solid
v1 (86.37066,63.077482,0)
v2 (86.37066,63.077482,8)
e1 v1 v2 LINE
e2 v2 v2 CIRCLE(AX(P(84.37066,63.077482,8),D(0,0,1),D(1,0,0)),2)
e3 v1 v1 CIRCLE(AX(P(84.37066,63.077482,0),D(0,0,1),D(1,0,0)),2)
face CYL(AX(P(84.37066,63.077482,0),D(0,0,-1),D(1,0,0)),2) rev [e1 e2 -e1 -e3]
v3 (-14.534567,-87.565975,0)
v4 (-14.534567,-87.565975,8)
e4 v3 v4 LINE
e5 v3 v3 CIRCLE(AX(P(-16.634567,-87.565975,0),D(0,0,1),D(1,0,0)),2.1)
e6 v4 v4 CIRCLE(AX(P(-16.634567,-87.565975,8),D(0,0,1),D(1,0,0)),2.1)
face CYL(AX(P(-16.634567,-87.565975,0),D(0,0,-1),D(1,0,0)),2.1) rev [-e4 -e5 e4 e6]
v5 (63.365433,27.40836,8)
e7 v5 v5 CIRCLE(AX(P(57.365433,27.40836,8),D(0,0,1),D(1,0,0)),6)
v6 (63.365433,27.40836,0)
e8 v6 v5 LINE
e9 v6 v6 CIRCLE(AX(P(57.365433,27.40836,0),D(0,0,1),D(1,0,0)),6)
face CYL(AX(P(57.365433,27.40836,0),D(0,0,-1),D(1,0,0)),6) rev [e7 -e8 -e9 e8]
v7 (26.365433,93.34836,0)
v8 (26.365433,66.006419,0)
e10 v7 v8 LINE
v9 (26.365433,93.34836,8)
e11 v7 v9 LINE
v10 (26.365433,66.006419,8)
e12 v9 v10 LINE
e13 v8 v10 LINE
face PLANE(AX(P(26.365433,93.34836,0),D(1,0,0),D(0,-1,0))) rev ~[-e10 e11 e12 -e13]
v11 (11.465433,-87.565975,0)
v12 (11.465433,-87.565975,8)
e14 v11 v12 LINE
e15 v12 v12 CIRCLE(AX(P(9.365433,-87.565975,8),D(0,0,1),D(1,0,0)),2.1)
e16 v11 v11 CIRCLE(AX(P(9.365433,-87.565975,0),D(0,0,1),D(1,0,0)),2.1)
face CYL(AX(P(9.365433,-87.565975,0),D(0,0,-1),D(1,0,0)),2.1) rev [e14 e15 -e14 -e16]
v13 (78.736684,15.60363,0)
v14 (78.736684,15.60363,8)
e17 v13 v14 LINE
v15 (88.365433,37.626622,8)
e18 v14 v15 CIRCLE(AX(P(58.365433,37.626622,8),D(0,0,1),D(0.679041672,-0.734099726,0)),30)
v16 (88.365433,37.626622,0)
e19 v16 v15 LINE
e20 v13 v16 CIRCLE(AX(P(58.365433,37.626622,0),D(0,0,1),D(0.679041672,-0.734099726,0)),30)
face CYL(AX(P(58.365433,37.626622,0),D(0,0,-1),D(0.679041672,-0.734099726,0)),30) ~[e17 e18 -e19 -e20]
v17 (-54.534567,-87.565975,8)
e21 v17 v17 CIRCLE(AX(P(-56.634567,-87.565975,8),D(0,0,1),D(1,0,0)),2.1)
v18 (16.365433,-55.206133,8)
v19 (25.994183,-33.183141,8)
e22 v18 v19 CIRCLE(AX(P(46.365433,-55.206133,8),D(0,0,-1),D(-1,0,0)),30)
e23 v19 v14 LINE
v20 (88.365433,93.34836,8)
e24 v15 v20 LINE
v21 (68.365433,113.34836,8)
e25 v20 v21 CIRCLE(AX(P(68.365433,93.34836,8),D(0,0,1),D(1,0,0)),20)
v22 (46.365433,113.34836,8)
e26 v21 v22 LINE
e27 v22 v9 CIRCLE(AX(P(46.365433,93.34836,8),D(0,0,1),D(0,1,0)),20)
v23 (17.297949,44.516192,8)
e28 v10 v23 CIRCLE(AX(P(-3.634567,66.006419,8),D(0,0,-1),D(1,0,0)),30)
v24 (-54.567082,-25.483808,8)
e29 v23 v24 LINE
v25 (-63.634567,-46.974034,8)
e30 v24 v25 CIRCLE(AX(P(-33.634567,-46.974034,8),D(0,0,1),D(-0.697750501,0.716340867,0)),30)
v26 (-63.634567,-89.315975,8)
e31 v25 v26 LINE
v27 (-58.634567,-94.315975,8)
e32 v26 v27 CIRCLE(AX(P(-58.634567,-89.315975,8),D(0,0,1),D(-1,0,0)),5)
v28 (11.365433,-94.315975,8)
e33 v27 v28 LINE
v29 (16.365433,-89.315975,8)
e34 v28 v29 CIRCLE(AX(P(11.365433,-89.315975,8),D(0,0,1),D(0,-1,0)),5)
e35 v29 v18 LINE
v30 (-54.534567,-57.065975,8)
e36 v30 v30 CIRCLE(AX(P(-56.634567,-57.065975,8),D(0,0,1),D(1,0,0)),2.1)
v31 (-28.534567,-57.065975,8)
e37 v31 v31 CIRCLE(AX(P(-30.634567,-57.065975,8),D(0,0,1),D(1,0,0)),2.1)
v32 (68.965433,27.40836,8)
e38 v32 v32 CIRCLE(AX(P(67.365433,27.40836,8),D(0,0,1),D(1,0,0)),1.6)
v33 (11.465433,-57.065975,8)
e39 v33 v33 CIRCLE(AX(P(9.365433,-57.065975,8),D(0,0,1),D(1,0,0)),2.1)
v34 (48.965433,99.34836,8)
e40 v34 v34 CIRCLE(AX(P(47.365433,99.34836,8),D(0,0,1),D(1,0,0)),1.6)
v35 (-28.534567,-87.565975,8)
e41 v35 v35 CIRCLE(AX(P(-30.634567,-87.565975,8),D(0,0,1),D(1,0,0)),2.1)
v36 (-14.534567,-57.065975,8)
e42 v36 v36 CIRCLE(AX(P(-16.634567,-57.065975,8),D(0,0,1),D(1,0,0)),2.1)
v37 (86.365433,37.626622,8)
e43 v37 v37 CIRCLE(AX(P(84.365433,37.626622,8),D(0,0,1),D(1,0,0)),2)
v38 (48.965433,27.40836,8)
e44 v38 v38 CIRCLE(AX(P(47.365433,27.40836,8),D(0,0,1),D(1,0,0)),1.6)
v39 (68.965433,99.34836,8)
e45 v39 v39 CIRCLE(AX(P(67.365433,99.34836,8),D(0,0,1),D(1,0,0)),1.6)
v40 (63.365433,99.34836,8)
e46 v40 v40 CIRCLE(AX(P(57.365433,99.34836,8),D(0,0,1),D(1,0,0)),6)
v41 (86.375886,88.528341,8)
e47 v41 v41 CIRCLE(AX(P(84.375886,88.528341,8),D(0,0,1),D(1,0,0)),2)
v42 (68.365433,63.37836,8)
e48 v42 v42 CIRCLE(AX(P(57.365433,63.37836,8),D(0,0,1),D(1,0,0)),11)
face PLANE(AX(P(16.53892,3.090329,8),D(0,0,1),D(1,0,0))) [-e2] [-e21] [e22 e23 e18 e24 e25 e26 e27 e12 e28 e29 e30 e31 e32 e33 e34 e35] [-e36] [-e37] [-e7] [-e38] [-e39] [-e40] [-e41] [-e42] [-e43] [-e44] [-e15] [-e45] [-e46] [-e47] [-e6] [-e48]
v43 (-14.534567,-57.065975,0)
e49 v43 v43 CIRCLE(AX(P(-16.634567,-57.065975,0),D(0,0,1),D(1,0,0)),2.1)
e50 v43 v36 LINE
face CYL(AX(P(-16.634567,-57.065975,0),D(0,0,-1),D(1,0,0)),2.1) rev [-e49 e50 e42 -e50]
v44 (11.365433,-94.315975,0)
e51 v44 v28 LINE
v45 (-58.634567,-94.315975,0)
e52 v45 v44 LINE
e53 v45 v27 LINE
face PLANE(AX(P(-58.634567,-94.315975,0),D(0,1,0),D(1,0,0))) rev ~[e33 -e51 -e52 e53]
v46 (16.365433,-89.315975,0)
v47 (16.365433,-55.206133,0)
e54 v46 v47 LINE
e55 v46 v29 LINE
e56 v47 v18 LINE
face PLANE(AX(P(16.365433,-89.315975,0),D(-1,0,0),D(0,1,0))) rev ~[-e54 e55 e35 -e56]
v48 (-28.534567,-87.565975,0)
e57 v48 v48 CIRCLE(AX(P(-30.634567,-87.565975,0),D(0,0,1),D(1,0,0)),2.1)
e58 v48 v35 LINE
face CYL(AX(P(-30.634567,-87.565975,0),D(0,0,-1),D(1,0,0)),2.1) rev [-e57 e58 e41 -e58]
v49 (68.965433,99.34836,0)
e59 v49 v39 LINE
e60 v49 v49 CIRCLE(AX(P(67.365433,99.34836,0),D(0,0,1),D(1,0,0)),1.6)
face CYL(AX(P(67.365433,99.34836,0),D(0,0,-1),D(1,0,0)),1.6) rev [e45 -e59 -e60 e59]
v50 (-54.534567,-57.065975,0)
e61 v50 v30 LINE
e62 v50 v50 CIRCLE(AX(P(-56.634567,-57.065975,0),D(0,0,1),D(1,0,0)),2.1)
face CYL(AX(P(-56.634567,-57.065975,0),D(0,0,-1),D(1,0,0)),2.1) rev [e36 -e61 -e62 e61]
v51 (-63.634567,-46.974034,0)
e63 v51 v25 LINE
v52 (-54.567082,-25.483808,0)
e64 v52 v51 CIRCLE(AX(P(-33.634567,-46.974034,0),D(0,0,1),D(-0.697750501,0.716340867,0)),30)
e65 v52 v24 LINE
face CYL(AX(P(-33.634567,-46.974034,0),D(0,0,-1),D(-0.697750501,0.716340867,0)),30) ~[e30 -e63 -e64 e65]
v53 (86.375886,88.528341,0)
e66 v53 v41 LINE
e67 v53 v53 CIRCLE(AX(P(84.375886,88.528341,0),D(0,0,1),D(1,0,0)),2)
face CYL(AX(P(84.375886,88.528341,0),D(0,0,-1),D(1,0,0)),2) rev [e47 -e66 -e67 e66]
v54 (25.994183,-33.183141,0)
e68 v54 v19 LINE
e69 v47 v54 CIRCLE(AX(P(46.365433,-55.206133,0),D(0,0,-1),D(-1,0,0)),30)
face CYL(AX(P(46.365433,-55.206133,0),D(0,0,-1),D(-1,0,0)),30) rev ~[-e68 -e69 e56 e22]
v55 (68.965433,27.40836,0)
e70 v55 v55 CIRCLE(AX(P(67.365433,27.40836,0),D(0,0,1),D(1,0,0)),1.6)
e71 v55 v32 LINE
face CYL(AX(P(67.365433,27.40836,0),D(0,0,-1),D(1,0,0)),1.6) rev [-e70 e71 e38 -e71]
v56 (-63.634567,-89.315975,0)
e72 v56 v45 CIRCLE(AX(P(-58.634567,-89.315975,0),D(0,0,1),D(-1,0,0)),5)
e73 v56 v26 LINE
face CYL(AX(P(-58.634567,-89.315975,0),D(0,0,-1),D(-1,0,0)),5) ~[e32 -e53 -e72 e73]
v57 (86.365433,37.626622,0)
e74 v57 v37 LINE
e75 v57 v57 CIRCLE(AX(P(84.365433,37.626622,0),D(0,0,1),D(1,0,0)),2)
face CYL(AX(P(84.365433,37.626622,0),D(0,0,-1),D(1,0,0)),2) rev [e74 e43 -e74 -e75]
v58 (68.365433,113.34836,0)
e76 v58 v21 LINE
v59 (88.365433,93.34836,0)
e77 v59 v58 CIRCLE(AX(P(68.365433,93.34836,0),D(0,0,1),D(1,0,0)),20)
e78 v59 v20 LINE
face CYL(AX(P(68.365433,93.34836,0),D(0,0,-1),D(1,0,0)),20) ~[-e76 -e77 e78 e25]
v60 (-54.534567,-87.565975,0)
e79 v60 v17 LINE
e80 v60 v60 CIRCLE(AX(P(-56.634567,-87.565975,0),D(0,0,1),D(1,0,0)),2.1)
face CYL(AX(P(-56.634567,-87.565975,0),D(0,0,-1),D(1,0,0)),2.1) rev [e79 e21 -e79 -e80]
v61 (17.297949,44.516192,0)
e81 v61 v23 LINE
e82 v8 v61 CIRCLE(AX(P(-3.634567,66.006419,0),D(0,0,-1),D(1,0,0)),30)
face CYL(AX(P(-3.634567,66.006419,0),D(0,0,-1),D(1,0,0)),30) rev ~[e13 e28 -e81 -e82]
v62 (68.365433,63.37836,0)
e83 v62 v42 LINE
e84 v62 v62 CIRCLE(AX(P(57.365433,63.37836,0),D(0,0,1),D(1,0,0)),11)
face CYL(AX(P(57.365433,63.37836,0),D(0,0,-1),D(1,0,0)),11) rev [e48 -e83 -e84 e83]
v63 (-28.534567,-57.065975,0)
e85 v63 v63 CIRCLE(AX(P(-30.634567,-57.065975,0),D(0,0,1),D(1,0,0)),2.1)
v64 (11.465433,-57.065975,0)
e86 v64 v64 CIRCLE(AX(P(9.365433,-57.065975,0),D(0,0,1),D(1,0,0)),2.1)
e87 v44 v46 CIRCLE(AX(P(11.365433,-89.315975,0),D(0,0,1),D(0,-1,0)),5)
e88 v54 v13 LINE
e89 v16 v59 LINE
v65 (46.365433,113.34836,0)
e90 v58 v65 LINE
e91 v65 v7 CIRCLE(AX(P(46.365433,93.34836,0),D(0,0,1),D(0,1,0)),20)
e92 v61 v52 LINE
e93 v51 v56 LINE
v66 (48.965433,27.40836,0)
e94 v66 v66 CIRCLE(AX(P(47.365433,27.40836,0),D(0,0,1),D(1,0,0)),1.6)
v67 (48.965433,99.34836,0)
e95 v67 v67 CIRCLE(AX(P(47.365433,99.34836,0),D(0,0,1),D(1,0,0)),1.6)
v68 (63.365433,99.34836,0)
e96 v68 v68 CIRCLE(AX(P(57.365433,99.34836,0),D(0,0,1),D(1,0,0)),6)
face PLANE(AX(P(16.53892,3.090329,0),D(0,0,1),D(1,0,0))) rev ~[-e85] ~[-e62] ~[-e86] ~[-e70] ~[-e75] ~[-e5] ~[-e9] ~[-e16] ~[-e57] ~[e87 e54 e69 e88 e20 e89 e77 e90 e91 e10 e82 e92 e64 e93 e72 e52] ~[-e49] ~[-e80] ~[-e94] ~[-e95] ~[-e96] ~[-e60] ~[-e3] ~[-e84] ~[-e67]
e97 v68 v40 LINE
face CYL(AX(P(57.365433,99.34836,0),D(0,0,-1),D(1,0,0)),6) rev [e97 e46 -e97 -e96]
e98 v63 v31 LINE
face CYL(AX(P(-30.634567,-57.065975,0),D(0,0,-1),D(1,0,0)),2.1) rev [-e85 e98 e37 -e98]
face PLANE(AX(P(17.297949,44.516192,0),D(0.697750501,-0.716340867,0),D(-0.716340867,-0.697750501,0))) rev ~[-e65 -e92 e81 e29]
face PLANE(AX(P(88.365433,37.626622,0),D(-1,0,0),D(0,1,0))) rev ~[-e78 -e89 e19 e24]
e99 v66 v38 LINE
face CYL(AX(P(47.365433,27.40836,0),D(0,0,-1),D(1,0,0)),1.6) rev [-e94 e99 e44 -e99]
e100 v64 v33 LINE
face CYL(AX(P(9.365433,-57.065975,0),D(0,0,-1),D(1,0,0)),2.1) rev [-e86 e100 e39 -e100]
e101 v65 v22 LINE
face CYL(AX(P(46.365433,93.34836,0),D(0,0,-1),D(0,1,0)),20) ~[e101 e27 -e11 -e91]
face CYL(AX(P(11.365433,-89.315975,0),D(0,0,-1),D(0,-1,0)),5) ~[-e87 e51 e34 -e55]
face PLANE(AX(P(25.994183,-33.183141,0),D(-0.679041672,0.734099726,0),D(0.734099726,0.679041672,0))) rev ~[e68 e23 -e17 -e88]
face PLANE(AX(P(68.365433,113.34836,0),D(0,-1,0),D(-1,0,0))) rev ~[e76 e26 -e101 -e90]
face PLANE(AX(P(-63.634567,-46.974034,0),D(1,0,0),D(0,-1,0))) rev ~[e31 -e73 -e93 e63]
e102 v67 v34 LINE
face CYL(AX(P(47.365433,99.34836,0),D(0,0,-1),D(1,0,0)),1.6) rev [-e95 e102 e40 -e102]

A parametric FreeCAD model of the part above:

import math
import FreeCAD as App
import Part
import Sketcher

V = App.Vector
Q = App.Units.Quantity

doc = App.newDocument("Part")
body = doc.addObject("PartDesign::Body", "Body")

# Sketch on XY plane
sketch1 = body.newObject("Sketcher::SketchObject", "Sketch")
sketch1.AttachmentSupport = (doc.getObject("XY_Plane"), [""])
sketch1.MapMode = "FlatFace"
sketch1.addGeometry(Part.LineSegment(V(-58.634567, -94.315975, 0), V(11.365433, -94.315975, 0)), False)
sketch1.addGeometry(Part.ArcOfCircle(Part.Circle(V(11.365433, -89.315975, 0), V(0, 0, 1), 5), math.radians(-90), math.radians(0)), False)
sketch1.addGeometry(Part.LineSegment(V(16.365433, -89.315975, 0), V(16.365433, -55.206133, 0)), False)
sketch1.addGeometry(Part.ArcOfCircle(Part.Circle(V(46.365433, -55.206133, 0), V(0, 0, 1), 30), math.radians(132.768801), math.radians(180)), False)
sketch1.addGeometry(Part.LineSegment(V(25.994183, -33.183141, 0), V(78.736684, 15.60363, 0)), False)
sketch1.addGeometry(Part.ArcOfCircle(Part.Circle(V(58.365433, 37.626622, 0), V(0, 0, 1), 30), math.radians(-47.231199), math.radians(0)), False)
sketch1.addGeometry(Part.LineSegment(V(88.365433, 37.626622, 0), V(88.365433, 93.34836, 0)), False)
sketch1.addGeometry(Part.ArcOfCircle(Part.Circle(V(68.365433, 93.34836, 0), V(0, 0, 1), 20), math.radians(0), math.radians(90)), False)
sketch1.addGeometry(Part.LineSegment(V(68.365433, 113.34836, 0), V(46.365433, 113.34836, 0)), False)
sketch1.addGeometry(Part.ArcOfCircle(Part.Circle(V(46.365433, 93.34836, 0), V(0, 0, 1), 20), math.radians(90), math.radians(180)), False)
sketch1.addGeometry(Part.LineSegment(V(26.365433, 93.34836, 0), V(26.365433, 66.006419, 0)), False)
sketch1.addGeometry(Part.ArcOfCircle(Part.Circle(V(-3.634567, 66.006419, 0), V(0, 0, 1), 30), math.radians(-45.753196), math.radians(0)), False)
sketch1.addGeometry(Part.LineSegment(V(17.297949, 44.516192, 0), V(-54.567082, -25.483808, 0)), False)
sketch1.addGeometry(Part.ArcOfCircle(Part.Circle(V(-33.634567, -46.974034, 0), V(0, 0, 1), 30), math.radians(134.246804), math.radians(180)), False)
sketch1.addGeometry(Part.LineSegment(V(-63.634567, -46.974034, 0), V(-63.634567, -89.315975, 0)), False)
sketch1.addGeometry(Part.ArcOfCircle(Part.Circle(V(-58.634567, -89.315975, 0), V(0, 0, 1), 5), math.radians(180), math.radians(270)), False)
sketch1.addGeometry(Part.Circle(V(-56.634567, -87.565975, 0), V(0, 0, 1), 2.1), False)
sketch1.addGeometry(Part.Circle(V(-30.634567, -87.565975, 0), V(0, 0, 1), 2.1), False)
sketch1.addGeometry(Part.Circle(V(-56.634567, -57.065975, 0), V(0, 0, 1), 2.1), False)
sketch1.addGeometry(Part.Circle(V(-30.634567, -57.065975, 0), V(0, 0, 1), 2.1), False)
sketch1.addGeometry(Part.Circle(V(-16.634567, -87.565975, 0), V(0, 0, 1), 2.1), False)
sketch1.addGeometry(Part.Circle(V(9.365433, -87.565975, 0), V(0, 0, 1), 2.1), False)
sketch1.addGeometry(Part.Circle(V(-16.634567, -57.065975, 0), V(0, 0, 1), 2.1), False)
sketch1.addGeometry(Part.Circle(V(9.365433, -57.065975, 0), V(0, 0, 1), 2.1), False)
sketch1.addGeometry(Part.Circle(V(47.365433, 27.40836, 0), V(0, 0, 1), 1.6), False)
sketch1.addGeometry(Part.Circle(V(57.365433, 27.40836, 0), V(0, 0, 1), 6), False)
sketch1.addGeometry(Part.Circle(V(67.365433, 27.40836, 0), V(0, 0, 1), 1.6), False)
sketch1.addGeometry(Part.Circle(V(84.365433, 37.626622, 0), V(0, 0, 1), 2), False)
sketch1.addGeometry(Part.Circle(V(47.365433, 99.34836, 0), V(0, 0, 1), 1.6), False)
sketch1.addGeometry(Part.Circle(V(57.365433, 63.37836, 0), V(0, 0, 1), 11), False)
sketch1.addGeometry(Part.Circle(V(84.37066, 63.077482, 0), V(0, 0, 1), 2), False)
sketch1.addGeometry(Part.Circle(V(57.365433, 99.34836, 0), V(0, 0, 1), 6), False)
sketch1.addGeometry(Part.Circle(V(67.365433, 99.34836, 0), V(0, 0, 1), 1.6), False)
sketch1.addGeometry(Part.Circle(V(84.375886, 88.528341, 0), V(0, 0, 1), 2), False)
sketch1.addConstraint(Sketcher.Constraint("Tangent", 0, 2, 1, 1))
sketch1.addConstraint(Sketcher.Constraint("Tangent", 1, 2, 2, 1))
sketch1.addConstraint(Sketcher.Constraint("Tangent", 2, 2, 3, 2))
sketch1.addConstraint(Sketcher.Constraint("Tangent", 3, 1, 4, 1))
sketch1.addConstraint(Sketcher.Constraint("Tangent", 4, 2, 5, 1))
sketch1.addConstraint(Sketcher.Constraint("Tangent", 5, 2, 6, 1))
sketch1.addConstraint(Sketcher.Constraint("Tangent", 6, 2, 7, 1))
sketch1.addConstraint(Sketcher.Constraint("Tangent", 7, 2, 8, 1))
sketch1.addConstraint(Sketcher.Constraint("Tangent", 8, 2, 9, 1))
sketch1.addConstraint(Sketcher.Constraint("Tangent", 9, 2, 10, 1))
sketch1.addConstraint(Sketcher.Constraint("Tangent", 10, 2, 11, 2))
sketch1.addConstraint(Sketcher.Constraint("Tangent", 11, 1, 12, 1))
sketch1.addConstraint(Sketcher.Constraint("Tangent", 12, 2, 13, 1))
sketch1.addConstraint(Sketcher.Constraint("Tangent", 13, 2, 14, 1))
sketch1.addConstraint(Sketcher.Constraint("Tangent", 14, 2, 15, 1))
sketch1.addConstraint(Sketcher.Constraint("Tangent", 15, 2, 0, 1))
sketch1.addConstraint(Sketcher.Constraint("Horizontal", 0))
sketch1.addConstraint(Sketcher.Constraint("Vertical", 2))
sketch1.addConstraint(Sketcher.Constraint("Vertical", 6))
sketch1.addConstraint(Sketcher.Constraint("Horizontal", 8))
sketch1.addConstraint(Sketcher.Constraint("Vertical", 10))
sketch1.addConstraint(Sketcher.Constraint("Vertical", 14))
sketch1.addConstraint(Sketcher.Constraint("Equal", 3, 5))
sketch1.addConstraint(Sketcher.Constraint("Equal", 7, 9))
sketch1.addConstraint(Sketcher.Constraint("Equal", 5, 11))
sketch1.addConstraint(Sketcher.Constraint("Equal", 11, 13))
sketch1.addConstraint(Sketcher.Constraint("Equal", 1, 15))
sketch1.addConstraint(Sketcher.Constraint("Equal", 16, 17))
sketch1.addConstraint(Sketcher.Constraint("Equal", 17, 18))
sketch1.addConstraint(Sketcher.Constraint("Equal", 18, 19))
sketch1.addConstraint(Sketcher.Constraint("Equal", 19, 20))
sketch1.addConstraint(Sketcher.Constraint("Equal", 20, 21))
sketch1.addConstraint(Sketcher.Constraint("Equal", 21, 22))
sketch1.addConstraint(Sketcher.Constraint("Equal", 22, 23))
sketch1.addConstraint(Sketcher.Constraint("Equal", 24, 26))
sketch1.addConstraint(Sketcher.Constraint("Equal", 26, 28))
sketch1.addConstraint(Sketcher.Constraint("Equal", 27, 30))
sketch1.addConstraint(Sketcher.Constraint("Equal", 25, 31))
sketch1.addConstraint(Sketcher.Constraint("Equal", 28, 32))
sketch1.addConstraint(Sketcher.Constraint("Equal", 30, 33))
sketch1.addConstraint(Sketcher.Constraint("Horizontal", 16, 3, 17, 3))
sketch1.addConstraint(Sketcher.Constraint("Horizontal", 18, 3, 19, 3))
sketch1.addConstraint(Sketcher.Constraint("Horizontal", 17, 3, 20, 3))
sketch1.addConstraint(Sketcher.Constraint("Horizontal", 20, 3, 21, 3))
sketch1.addConstraint(Sketcher.Constraint("Horizontal", 19, 3, 22, 3))
sketch1.addConstraint(Sketcher.Constraint("Horizontal", 22, 3, 23, 3))
sketch1.addConstraint(Sketcher.Constraint("Horizontal", 24, 3, 25, 3))
sketch1.addConstraint(Sketcher.Constraint("Horizontal", 25, 3, 26, 3))
sketch1.addConstraint(Sketcher.Constraint("Horizontal", 5, 3, 27, 3))
sketch1.addConstraint(Sketcher.Constraint("Horizontal", 28, 3, 31, 3))
sketch1.addConstraint(Sketcher.Constraint("Horizontal", 31, 3, 32, 3))
sketch1.addConstraint(Sketcher.Constraint("Vertical", 3, 3, 9, 3))
sketch1.addConstraint(Sketcher.Constraint("Vertical", 16, 3, 18, 3))
sketch1.addConstraint(Sketcher.Constraint("Vertical", 17, 3, 19, 3))
sketch1.addConstraint(Sketcher.Constraint("Vertical", 20, 3, 22, 3))
sketch1.addConstraint(Sketcher.Constraint("Vertical", 21, 3, 23, 3))
sketch1.addConstraint(Sketcher.Constraint("Vertical", 24, 3, 28, 3))
sketch1.addConstraint(Sketcher.Constraint("Vertical", 25, 3, 29, 3))
sketch1.addConstraint(Sketcher.Constraint("Vertical", 29, 3, 31, 3))
sketch1.addConstraint(Sketcher.Constraint("Vertical", 26, 3, 32, 3))
sketch1.addConstraint(Sketcher.Constraint("Diameter", 25, Q("12 mm")))
sketch1.addConstraint(Sketcher.Constraint("Diameter", 27, Q("4 mm")))
sketch1.addConstraint(Sketcher.Constraint("Diameter", 29, Q("22 mm")))
sketch1.addConstraint(Sketcher.Constraint("Radius", 1, Q("5 mm")))
sketch1.addConstraint(Sketcher.Constraint("Radius", 3, Q("30 mm")))
sketch1.addConstraint(Sketcher.Constraint("Radius", 7, Q("20 mm")))
sketch1.addConstraint(Sketcher.Constraint("Diameter", 16, Q("4.2 mm")))
sketch1.addConstraint(Sketcher.Constraint("Diameter", 24, Q("3.2 mm")))
sketch1.addConstraint(Sketcher.Constraint("DistanceX", 0, 1, 0, 2, Q("70 mm")))
sketch1.addConstraint(Sketcher.Constraint("DistanceX", 8, 2, 8, 1, Q("22 mm")))
sketch1.addConstraint(Sketcher.Constraint("DistanceX", 15, 3, 16, 3, Q("2 mm")))
sketch1.addConstraint(Sketcher.Constraint("DistanceX", 16, 3, 17, 3, Q("26 mm")))
sketch1.addConstraint(Sketcher.Constraint("DistanceX", 17, 3, 20, 3, Q("14 mm")))
sketch1.addConstraint(Sketcher.Constraint("DistanceX", 21, 3, 1, 3, Q("2 mm")))
sketch1.addConstraint(Sketcher.Constraint("DistanceX", 24, 3, 5, 3, Q("11 mm")))
sketch1.addConstraint(Sketcher.Constraint("DistanceX", 24, 3, 25, 3, Q("10 mm")))
sketch1.addConstraint(Sketcher.Constraint("DistanceX", 25, 3, 26, 3, Q("10 mm")))
sketch1.addConstraint(Sketcher.Constraint("DistanceX", 26, 3, 27, 3, Q("17 mm")))
sketch1.addConstraint(Sketcher.Constraint("DistanceY", 9, 3, 28, 3, Q("6 mm")))
sketch1.addConstraint(Sketcher.Constraint("DistanceY", 16, 3, 18, 3, Q("30.5 mm")))
sketch1.addConstraint(Sketcher.Constraint("DistanceY", 15, 3, 16, 3, Q("1.75 mm")))
sketch1.addConstraint(Sketcher.Constraint("DistanceY", 24, 3, 9, 3, Q("65.94 mm")))
sketch1.addConstraint(Sketcher.Constraint("DistanceY", 29, 3, 7, 3, Q("29.97 mm")))
sketch1.addConstraint(Sketcher.Constraint("DistanceY", 2, 1, 2, 2, Q("34.109842 mm")))
sketch1.addConstraint(Sketcher.Constraint("DistanceY", 10, 2, 10, 1, Q("27.341941 mm")))
sketch1.addConstraint(Sketcher.Constraint("DistanceY", 14, 2, 14, 1, Q("42.341941 mm")))
sketch1.addConstraint(Sketcher.Constraint("DistanceY", 6, 1, 6, 2, Q("55.721737 mm")))
sketch1.addConstraint(Sketcher.Constraint("DistanceY", -1, 1, 7, 3, Q("93.34836 mm")))
sketch1.addConstraint(Sketcher.Constraint("DistanceX", -1, 1, 30, 3, Q("84.37066 mm")))
sketch1.addConstraint(Sketcher.Constraint("DistanceY", -1, 1, 30, 3, Q("63.077482 mm")))
sketch1.addConstraint(Sketcher.Constraint("DistanceY", -1, 1, 33, 3, Q("88.528341 mm")))
sketch1.addConstraint(Sketcher.Constraint("DistanceY", 3, 1, -1, 1, Q("33.183141 mm")))
sketch1.addConstraint(Sketcher.Constraint("DistanceX", -1, 1, 11, 1, Q("17.297949 mm")))
sketch1.addConstraint(Sketcher.Constraint("DistanceX", -1, 1, 33, 3, Q("84.375886 mm")))
pad1 = body.newObject("PartDesign::Pad", "Pad")
pad1.Profile = sketch1
pad1.Length = 8

doc.recompute()
